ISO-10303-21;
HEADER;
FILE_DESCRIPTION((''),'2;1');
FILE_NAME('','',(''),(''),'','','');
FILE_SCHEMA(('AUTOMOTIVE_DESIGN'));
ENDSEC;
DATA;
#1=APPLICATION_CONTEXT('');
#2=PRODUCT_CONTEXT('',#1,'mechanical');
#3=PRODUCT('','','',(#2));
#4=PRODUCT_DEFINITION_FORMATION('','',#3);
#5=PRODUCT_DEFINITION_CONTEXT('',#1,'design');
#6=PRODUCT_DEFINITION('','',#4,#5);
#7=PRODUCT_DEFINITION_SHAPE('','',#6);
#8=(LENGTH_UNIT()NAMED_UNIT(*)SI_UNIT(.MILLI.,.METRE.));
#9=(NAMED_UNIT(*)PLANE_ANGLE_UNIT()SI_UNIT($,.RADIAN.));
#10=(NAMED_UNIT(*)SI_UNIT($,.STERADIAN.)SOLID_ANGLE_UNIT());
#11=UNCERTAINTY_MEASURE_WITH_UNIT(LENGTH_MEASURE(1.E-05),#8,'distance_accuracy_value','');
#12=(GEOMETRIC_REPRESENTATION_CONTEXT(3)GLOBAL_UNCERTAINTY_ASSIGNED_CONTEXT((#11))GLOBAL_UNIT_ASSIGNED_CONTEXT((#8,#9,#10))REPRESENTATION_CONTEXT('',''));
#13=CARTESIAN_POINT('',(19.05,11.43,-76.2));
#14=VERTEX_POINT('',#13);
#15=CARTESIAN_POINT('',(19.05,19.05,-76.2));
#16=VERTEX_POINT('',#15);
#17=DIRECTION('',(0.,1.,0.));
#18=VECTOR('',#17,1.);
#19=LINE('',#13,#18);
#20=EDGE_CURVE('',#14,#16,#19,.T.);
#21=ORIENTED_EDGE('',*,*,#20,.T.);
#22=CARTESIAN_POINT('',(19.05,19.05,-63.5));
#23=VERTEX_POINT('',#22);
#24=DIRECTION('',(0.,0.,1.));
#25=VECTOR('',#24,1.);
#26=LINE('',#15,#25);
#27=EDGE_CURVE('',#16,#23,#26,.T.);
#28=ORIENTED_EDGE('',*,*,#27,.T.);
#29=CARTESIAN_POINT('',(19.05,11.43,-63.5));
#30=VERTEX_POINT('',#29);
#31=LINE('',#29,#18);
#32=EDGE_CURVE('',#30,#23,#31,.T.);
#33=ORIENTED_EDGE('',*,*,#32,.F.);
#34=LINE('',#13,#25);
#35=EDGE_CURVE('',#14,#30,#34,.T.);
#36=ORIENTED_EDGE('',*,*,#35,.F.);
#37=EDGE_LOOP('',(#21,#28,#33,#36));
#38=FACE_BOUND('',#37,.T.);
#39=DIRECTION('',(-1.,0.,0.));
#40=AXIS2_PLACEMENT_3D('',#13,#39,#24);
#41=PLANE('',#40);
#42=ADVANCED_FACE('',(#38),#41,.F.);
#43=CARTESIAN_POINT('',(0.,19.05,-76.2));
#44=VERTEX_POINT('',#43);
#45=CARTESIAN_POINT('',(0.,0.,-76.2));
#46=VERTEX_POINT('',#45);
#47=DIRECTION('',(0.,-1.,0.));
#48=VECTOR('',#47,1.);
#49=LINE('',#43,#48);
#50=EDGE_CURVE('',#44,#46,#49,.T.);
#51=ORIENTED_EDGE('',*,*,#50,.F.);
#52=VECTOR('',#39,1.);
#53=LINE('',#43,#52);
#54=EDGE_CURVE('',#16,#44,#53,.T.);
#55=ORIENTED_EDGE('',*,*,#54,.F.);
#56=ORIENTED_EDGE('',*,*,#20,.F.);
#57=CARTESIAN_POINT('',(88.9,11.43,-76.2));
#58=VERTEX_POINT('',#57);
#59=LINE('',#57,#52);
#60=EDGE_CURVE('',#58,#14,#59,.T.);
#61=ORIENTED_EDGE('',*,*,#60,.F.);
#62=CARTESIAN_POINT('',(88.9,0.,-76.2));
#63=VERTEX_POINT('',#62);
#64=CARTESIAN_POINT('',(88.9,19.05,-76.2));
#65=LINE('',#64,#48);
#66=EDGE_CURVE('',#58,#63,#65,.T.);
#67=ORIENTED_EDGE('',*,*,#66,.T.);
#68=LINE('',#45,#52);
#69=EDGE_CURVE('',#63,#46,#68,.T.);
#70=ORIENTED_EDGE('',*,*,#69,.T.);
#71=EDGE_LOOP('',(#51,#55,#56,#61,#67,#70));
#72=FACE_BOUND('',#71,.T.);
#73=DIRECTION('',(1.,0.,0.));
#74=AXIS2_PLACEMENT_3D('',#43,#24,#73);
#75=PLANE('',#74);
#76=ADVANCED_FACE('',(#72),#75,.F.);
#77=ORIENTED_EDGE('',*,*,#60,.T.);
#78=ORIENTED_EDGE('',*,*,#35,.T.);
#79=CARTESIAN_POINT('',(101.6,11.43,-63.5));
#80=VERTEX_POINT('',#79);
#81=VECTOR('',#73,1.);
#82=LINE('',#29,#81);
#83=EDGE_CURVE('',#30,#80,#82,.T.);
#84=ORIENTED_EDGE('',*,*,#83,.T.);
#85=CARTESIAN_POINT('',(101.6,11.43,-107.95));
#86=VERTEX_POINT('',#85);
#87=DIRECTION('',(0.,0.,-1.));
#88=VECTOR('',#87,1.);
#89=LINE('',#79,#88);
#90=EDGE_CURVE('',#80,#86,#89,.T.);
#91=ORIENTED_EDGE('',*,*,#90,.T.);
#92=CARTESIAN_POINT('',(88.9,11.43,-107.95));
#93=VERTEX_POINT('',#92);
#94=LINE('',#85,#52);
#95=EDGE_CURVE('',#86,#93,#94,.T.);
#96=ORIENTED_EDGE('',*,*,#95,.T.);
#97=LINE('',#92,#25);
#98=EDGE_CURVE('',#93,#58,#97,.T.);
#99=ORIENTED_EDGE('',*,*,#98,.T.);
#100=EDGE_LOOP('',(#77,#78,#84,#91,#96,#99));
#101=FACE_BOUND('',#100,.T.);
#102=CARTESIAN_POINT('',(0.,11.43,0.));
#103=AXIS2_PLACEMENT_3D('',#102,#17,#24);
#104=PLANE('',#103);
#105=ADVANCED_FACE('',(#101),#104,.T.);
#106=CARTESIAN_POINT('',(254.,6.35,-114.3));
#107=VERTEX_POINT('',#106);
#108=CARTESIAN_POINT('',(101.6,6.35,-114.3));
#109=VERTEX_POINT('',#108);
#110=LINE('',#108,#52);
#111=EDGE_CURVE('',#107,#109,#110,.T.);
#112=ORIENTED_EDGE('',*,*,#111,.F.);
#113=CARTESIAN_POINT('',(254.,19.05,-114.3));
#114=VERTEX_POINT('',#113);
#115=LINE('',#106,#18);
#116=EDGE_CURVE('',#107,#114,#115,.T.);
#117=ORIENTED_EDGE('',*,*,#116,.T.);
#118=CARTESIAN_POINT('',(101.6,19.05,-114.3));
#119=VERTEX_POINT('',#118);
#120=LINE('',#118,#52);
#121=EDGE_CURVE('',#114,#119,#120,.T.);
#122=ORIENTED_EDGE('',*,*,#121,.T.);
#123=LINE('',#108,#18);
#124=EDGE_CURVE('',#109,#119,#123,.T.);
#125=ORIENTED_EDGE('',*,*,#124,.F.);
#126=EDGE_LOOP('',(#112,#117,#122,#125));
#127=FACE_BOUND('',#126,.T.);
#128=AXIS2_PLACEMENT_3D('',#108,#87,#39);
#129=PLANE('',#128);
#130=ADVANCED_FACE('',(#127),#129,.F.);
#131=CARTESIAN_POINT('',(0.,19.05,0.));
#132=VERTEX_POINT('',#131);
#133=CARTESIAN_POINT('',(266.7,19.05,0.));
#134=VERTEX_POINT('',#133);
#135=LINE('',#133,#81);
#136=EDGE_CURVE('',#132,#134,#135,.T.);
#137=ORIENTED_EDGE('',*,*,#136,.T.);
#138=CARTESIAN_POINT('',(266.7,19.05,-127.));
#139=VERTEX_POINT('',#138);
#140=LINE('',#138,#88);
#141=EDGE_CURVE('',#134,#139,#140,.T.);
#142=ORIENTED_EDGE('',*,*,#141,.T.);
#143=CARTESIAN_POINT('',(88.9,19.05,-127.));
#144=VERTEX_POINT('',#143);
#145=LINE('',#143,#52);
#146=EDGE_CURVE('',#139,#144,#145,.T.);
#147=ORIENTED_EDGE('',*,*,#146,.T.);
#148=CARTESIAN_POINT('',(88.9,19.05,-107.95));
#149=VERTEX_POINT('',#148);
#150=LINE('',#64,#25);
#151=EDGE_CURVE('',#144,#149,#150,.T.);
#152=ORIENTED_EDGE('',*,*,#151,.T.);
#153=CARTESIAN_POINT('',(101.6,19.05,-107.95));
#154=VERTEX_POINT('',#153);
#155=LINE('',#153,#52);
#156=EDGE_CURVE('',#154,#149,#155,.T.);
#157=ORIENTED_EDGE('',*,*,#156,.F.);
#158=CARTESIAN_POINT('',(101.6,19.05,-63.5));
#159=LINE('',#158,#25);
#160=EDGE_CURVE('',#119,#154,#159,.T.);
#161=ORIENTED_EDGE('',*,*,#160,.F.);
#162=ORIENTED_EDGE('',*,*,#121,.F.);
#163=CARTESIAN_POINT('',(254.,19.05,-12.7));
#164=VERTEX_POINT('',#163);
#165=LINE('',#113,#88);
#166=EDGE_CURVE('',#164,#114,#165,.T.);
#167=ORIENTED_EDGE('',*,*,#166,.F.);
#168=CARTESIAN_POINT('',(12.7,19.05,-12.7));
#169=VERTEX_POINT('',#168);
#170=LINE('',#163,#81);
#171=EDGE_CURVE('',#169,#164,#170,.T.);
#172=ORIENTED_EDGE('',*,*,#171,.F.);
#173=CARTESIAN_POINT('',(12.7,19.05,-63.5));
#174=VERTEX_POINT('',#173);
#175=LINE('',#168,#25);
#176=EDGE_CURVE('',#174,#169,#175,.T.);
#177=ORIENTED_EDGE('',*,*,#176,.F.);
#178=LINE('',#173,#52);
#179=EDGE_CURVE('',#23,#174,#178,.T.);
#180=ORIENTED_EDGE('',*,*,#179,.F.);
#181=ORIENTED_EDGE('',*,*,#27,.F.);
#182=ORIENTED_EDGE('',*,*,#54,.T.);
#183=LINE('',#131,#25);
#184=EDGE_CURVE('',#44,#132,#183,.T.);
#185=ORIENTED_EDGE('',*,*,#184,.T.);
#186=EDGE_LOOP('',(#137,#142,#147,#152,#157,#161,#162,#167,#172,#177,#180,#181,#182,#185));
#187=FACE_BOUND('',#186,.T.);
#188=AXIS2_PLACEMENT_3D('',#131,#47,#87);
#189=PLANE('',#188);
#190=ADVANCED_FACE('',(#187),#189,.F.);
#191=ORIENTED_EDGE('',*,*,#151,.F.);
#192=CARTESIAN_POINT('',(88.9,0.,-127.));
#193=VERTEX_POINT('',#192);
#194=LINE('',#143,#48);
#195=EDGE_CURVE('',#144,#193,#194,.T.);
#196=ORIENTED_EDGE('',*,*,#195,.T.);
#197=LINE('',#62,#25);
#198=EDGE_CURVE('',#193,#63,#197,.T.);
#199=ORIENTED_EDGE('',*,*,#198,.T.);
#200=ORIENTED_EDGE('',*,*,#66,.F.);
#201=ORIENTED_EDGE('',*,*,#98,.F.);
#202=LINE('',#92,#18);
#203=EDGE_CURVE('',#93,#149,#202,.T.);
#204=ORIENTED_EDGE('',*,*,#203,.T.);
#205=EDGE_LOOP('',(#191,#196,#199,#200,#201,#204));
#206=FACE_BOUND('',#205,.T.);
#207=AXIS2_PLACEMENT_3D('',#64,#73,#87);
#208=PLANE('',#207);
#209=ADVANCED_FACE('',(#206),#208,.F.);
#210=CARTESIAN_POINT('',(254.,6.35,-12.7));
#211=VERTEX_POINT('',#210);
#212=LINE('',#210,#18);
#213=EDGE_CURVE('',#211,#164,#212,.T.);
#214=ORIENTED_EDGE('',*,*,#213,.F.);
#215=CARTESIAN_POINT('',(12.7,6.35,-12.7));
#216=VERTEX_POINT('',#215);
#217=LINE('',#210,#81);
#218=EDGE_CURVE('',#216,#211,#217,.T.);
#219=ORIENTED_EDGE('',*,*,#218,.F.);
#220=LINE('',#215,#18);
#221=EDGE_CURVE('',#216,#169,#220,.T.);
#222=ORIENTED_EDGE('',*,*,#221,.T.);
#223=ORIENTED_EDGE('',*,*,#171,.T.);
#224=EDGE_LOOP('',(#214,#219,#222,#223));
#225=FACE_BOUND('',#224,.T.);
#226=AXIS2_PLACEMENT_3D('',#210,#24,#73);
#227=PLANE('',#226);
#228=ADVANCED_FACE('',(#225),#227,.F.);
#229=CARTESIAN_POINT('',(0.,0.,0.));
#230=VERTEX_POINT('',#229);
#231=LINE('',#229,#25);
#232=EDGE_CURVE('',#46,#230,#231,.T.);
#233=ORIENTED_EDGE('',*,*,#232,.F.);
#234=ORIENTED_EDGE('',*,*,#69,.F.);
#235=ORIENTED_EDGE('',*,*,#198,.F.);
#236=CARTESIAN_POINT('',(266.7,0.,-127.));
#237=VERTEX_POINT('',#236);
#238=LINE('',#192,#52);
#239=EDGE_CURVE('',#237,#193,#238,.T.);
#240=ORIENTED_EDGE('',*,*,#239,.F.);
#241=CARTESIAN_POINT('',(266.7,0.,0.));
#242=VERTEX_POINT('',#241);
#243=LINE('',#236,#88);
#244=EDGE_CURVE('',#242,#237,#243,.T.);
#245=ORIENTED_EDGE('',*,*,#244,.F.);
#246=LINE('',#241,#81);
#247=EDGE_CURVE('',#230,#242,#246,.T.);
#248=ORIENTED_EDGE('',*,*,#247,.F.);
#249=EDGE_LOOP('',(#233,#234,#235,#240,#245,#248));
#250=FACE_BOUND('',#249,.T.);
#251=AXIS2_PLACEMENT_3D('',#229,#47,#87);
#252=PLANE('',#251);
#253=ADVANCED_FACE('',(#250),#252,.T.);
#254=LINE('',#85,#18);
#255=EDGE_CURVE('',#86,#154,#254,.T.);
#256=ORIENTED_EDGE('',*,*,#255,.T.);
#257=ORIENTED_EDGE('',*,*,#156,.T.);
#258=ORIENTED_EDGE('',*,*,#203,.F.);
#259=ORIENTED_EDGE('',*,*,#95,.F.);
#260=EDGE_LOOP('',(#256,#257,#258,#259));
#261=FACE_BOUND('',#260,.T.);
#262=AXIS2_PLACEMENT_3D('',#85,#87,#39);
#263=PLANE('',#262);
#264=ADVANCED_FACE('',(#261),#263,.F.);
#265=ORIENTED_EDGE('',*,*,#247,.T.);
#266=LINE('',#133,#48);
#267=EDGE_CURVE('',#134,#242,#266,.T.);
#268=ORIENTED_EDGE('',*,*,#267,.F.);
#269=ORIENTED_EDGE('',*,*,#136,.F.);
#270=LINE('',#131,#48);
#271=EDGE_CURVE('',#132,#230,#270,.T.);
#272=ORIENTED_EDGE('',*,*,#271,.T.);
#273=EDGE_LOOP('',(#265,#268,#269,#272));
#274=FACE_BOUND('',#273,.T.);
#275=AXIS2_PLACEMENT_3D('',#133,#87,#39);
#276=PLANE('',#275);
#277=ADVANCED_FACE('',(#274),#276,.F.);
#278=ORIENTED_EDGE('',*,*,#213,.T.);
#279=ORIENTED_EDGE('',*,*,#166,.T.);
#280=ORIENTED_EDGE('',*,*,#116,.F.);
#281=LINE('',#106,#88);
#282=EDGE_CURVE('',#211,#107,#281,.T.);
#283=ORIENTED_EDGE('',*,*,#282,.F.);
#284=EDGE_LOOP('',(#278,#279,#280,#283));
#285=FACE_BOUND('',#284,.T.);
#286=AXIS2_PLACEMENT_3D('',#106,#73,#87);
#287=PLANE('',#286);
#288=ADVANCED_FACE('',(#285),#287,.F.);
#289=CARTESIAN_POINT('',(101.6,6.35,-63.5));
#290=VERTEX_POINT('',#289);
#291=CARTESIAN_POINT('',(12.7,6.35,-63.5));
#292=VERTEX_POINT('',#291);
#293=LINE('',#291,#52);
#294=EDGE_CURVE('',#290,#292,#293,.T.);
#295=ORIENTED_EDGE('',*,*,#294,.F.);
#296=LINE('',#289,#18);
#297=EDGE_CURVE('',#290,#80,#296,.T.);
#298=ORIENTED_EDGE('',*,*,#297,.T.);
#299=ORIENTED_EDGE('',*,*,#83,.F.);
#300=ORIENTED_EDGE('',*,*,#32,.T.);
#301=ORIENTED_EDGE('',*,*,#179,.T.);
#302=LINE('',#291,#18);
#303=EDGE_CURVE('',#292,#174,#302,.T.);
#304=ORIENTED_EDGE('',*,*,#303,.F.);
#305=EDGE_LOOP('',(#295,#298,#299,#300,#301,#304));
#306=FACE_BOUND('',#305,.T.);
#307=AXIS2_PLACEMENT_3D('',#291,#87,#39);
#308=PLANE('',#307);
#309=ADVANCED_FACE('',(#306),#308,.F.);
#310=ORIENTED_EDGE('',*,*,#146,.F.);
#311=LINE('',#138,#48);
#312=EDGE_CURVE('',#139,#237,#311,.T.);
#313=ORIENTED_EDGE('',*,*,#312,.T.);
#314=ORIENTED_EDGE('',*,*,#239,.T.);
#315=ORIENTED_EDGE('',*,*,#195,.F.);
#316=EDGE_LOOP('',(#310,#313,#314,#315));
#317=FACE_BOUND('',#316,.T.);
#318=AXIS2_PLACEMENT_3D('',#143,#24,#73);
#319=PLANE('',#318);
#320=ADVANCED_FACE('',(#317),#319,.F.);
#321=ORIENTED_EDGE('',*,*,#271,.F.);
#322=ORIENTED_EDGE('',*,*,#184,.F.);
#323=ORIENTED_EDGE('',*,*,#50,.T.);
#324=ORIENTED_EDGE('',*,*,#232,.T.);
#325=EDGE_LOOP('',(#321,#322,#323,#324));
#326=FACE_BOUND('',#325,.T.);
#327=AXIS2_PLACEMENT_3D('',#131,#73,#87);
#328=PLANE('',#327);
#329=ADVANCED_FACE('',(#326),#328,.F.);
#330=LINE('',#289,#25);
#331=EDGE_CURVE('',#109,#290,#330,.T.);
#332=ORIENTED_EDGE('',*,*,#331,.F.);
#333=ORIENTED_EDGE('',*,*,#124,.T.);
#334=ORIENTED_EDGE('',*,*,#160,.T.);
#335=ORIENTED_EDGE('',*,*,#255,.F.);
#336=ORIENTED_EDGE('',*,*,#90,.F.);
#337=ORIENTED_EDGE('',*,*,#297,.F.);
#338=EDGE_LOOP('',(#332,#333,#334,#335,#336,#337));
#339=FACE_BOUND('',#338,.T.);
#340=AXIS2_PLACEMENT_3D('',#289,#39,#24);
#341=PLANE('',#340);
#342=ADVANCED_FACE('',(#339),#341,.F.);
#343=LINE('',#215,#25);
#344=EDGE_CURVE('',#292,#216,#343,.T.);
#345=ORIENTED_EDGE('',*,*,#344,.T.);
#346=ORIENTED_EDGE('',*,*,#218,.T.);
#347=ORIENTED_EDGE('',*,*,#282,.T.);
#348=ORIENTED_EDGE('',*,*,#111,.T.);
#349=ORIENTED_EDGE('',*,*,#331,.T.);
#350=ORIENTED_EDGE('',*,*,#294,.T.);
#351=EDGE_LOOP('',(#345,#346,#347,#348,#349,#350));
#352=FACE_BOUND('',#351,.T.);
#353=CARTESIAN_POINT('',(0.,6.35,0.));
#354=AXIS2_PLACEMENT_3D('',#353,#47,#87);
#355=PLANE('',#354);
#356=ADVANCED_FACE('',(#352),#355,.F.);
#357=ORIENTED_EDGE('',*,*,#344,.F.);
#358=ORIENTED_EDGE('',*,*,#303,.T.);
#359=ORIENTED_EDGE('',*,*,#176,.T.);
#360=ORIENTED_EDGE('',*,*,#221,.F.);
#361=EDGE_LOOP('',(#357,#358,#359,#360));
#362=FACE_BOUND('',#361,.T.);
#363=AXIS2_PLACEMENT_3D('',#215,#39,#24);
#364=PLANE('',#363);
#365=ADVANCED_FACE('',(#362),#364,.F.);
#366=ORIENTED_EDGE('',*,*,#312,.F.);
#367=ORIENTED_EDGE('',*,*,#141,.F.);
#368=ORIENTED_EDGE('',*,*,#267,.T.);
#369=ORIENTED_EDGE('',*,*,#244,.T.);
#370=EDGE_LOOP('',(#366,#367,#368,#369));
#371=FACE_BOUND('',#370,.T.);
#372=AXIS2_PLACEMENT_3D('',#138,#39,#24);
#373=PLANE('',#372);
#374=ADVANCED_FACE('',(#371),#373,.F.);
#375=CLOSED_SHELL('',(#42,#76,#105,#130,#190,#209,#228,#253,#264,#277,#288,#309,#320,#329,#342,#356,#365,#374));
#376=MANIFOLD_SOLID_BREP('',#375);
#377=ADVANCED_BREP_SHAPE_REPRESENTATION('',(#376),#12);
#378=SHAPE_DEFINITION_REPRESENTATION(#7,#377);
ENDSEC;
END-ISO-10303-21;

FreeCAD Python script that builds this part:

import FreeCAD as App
import Part
import Sketcher
Q = App.Units.Quantity

doc = App.newDocument("Part")
body = doc.addObject("PartDesign::Body", "Body")

sketch1 = doc.addObject("Sketcher::SketchObject", "Sketch")
body.addObject(sketch1)
sketch1.AttachmentSupport = (doc.XZ_Plane, [""])
sketch1.MapMode = "FlatFace"
sketch1.addGeometry([
    Part.LineSegment(App.Vector(0, -76.2, 0), App.Vector(0, 0, 0)),
    Part.LineSegment(App.Vector(0, 0, 0), App.Vector(266.7, 0, 0)),
    Part.LineSegment(App.Vector(266.7, 0, 0), App.Vector(266.7, -127, 0)),
    Part.LineSegment(App.Vector(266.7, -127, 0), App.Vector(88.9, -127, 0)),
    Part.LineSegment(App.Vector(88.9, -127, 0), App.Vector(88.9, -76.2, 0)),
    Part.LineSegment(App.Vector(88.9, -76.2, 0), App.Vector(0, -76.2, 0)),
], False)
sketch1.addConstraint([
    Sketcher.Constraint("Coincident", 0, 2, 1, 1),
    Sketcher.Constraint("Coincident", 1, 2, 2, 1),
    Sketcher.Constraint("Coincident", 2, 2, 3, 1),
    Sketcher.Constraint("Coincident", 3, 2, 4, 1),
    Sketcher.Constraint("Coincident", 4, 2, 5, 1),
    Sketcher.Constraint("Coincident", 5, 2, 0, 1),
    Sketcher.Constraint("Vertical", 0),
    Sketcher.Constraint("Horizontal", 1),
    Sketcher.Constraint("Vertical", 2),
    Sketcher.Constraint("Horizontal", 3),
    Sketcher.Constraint("Vertical", 4),
    Sketcher.Constraint("Horizontal", 5),
    Sketcher.Constraint("Coincident", 0, 2, -1, 1),
    Sketcher.Constraint("DistanceX", 3, 2, 3, 1, Q("7 in")),
    Sketcher.Constraint("DistanceY", 0, 1, 0, 2, Q("3 in")),
    Sketcher.Constraint("DistanceY", 2, 2, 2, 1, Q("5 in")),
    Sketcher.Constraint("DistanceX", 1, 1, 1, 2, Q("10.5 in")),
])
pad1 = doc.addObject("PartDesign::Pad", "Pad")
body.addObject(pad1)
pad1.Profile = sketch1
pad1.Length = Q("0.75 in")
pad1.Reversed = True

sketch2 = doc.addObject("Sketcher::SketchObject", "Sketch001")
body.addObject(sketch2)
sketch2.AttachmentSupport = (doc.XZ_Plane, [""])
sketch2.MapMode = "FlatFace"
sketch2.AttachmentOffset = App.Placement(App.Vector(0, 0, -0.75 * 25.4), App.Rotation())
sketch2.addGeometry([
    Part.LineSegment(App.Vector(101.6, -63.5, 0), App.Vector(12.7, -63.5, 0)),
    Part.LineSegment(App.Vector(12.7, -63.5, 0), App.Vector(12.7, -12.7, 0)),
    Part.LineSegment(App.Vector(12.7, -12.7, 0), App.Vector(254, -12.7, 0)),
    Part.LineSegment(App.Vector(254, -12.7, 0), App.Vector(254, -114.3, 0)),
    Part.LineSegment(App.Vector(254, -114.3, 0), App.Vector(101.6, -114.3, 0)),
    Part.LineSegment(App.Vector(101.6, -114.3, 0), App.Vector(101.6, -63.5, 0)),
], False)
sketch2.addConstraint([
    Sketcher.Constraint("Coincident", 0, 2, 1, 1),
    Sketcher.Constraint("Coincident", 1, 2, 2, 1),
    Sketcher.Constraint("Coincident", 2, 2, 3, 1),
    Sketcher.Constraint("Coincident", 3, 2, 4, 1),
    Sketcher.Constraint("Coincident", 4, 2, 5, 1),
    Sketcher.Constraint("Coincident", 5, 2, 0, 1),
    Sketcher.Constraint("Horizontal", 0),
    Sketcher.Constraint("Vertical", 1),
    Sketcher.Constraint("Horizontal", 2),
    Sketcher.Constraint("Vertical", 3),
    Sketcher.Constraint("Horizontal", 4),
    Sketcher.Constraint("Vertical", 5),
    Sketcher.Constraint("Equal", 1, 5),
    Sketcher.Constraint("DistanceX", 4, 2, 4, 1, Q("6 in")),
    Sketcher.Constraint("DistanceY", 1, 1, 1, 2, Q("2 in")),
    Sketcher.Constraint("DistanceX", 0, 2, 0, 1, Q("3.5 in")),
    Sketcher.Constraint("DistanceX", -1, 1, 2, 2, Q("10 in")),
    Sketcher.Constraint("DistanceY", 0, 2, -1, 1, Q("2.5 in")),
])
pocket1 = doc.addObject("PartDesign::Pocket", "Pocket")
body.addObject(pocket1)
pocket1.Profile = sketch2
pocket1.Length = Q("0.5 in")
pocket1.Reversed = True

sketch3 = doc.addObject("Sketcher::SketchObject", "Sketch002")
body.addObject(sketch3)
sketch3.AttachmentSupport = (doc.XZ_Plane, [""])
sketch3.MapMode = "FlatFace"
sketch3.AttachmentOffset = App.Placement(App.Vector(0, 0, -0.75 * 25.4), App.Rotation())
sketch3.addGeometry([
    Part.LineSegment(App.Vector(19.05, -76.2, 0), App.Vector(19.05, -63.5, 0)),
    Part.LineSegment(App.Vector(19.05, -63.5, 0), App.Vector(101.6, -63.5, 0)),
    Part.LineSegment(App.Vector(101.6, -63.5, 0), App.Vector(101.6, -107.95, 0)),
    Part.LineSegment(App.Vector(101.6, -107.95, 0), App.Vector(88.9, -107.95, 0)),
    Part.LineSegment(App.Vector(88.9, -107.95, 0), App.Vector(88.9, -76.2, 0)),
    Part.LineSegment(App.Vector(88.9, -76.2, 0), App.Vector(19.05, -76.2, 0)),
], False)
sketch3.addConstraint([
    Sketcher.Constraint("Coincident", 0, 2, 1, 1),
    Sketcher.Constraint("Coincident", 1, 2, 2, 1),
    Sketcher.Constraint("Coincident", 2, 2, 3, 1),
    Sketcher.Constraint("Coincident", 3, 2, 4, 1),
    Sketcher.Constraint("Coincident", 4, 2, 5, 1),
    Sketcher.Constraint("Coincident", 5, 2, 0, 1),
    Sketcher.Constraint("Vertical", 0),
    Sketcher.Constraint("Horizontal", 1),
    Sketcher.Constraint("Vertical", 2),
    Sketcher.Constraint("Horizontal", 3),
    Sketcher.Constraint("Vertical", 4),
    Sketcher.Constraint("Horizontal", 5),
    Sketcher.Constraint("Equal", 3, 0),
    Sketcher.Constraint("DistanceX", 3, 2, 3, 1, Q("0.5 in")),
    Sketcher.Constraint("DistanceX", -1, 1, 1, 2, Q("4 in")),
    Sketcher.Constraint("DistanceY", 4, 2, -1, 1, Q("3 in")),
    Sketcher.Constraint("DistanceX", 1, 1, 1, 2, Q("3.25 in")),
    Sketcher.Constraint("DistanceY", 2, 2, 2, 1, Q("1.75 in")),
])
pocket2 = doc.addObject("PartDesign::Pocket", "Pocket001")
body.addObject(pocket2)
pocket2.Profile = sketch3
pocket2.Length = Q("0.3 in")
pocket2.Reversed = True

doc.recompute()
